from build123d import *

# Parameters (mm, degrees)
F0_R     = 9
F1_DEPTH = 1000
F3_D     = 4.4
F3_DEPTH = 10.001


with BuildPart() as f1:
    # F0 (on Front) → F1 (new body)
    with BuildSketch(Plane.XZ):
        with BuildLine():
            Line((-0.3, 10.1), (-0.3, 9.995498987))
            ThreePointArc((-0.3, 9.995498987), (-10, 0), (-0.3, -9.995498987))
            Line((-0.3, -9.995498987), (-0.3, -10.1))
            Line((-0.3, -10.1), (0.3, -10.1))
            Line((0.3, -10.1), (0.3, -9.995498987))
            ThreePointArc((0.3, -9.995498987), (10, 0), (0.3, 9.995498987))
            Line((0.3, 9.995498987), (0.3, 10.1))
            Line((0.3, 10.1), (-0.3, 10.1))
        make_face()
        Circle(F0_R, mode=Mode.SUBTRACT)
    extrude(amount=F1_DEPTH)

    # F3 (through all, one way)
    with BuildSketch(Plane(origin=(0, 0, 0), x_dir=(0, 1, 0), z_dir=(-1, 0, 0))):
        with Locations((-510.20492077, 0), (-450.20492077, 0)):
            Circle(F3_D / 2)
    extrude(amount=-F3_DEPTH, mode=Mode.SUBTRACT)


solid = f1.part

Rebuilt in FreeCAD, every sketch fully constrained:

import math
import FreeCAD as App
import Part
import Sketcher

V = App.Vector

doc = App.newDocument("Part")
body = doc.addObject("PartDesign::Body", "Body")

sketch1 = doc.addObject("Sketcher::SketchObject", "Sketch")
body.addObject(sketch1)
sketch1.AttachmentSupport = (doc.XZ_Plane, [""])
sketch1.MapMode = "FlatFace"
sketch1.addGeometry([
    Part.LineSegment(V(-0.3, 10.1, 0), V(-0.3, 9.995499, 0)),
    Part.ArcOfCircle(Part.Circle(V(0, 0, 0), V(0, 0, 1), 10), math.radians(91.719131), math.radians(268.280869)),
    Part.LineSegment(V(-0.3, -9.995499, 0), V(-0.3, -10.1, 0)),
    Part.LineSegment(V(-0.3, -10.1, 0), V(0.3, -10.1, 0)),
    Part.LineSegment(V(0.3, -10.1, 0), V(0.3, -9.995499, 0)),
    Part.ArcOfCircle(Part.Circle(V(0, 0, 0), V(0, 0, 1), 10), math.radians(-88.280869), math.radians(88.280869)),
    Part.LineSegment(V(0.3, 9.995499, 0), V(0.3, 10.1, 0)),
    Part.LineSegment(V(0.3, 10.1, 0), V(-0.3, 10.1, 0)),
    Part.Circle(V(0, 0, 0), V(0, 0, 1), 9),
], False)
sketch1.addConstraint([
    Sketcher.Constraint("Coincident", 0, 2, 1, 1),
    Sketcher.Constraint("Coincident", 1, 2, 2, 1),
    Sketcher.Constraint("Coincident", 2, 2, 3, 1),
    Sketcher.Constraint("Coincident", 3, 2, 4, 1),
    Sketcher.Constraint("Coincident", 4, 2, 5, 1),
    Sketcher.Constraint("Coincident", 5, 2, 6, 1),
    Sketcher.Constraint("Coincident", 6, 2, 7, 1),
    Sketcher.Constraint("Coincident", 7, 2, 0, 1),
    Sketcher.Constraint("Vertical", 0),
    Sketcher.Constraint("Vertical", 2),
    Sketcher.Constraint("Horizontal", 3),
    Sketcher.Constraint("Vertical", 4),
    Sketcher.Constraint("Vertical", 6),
    Sketcher.Constraint("Horizontal", 7),
    Sketcher.Constraint("Coincident", 1, 3, -1, 1),
    Sketcher.Constraint("Coincident", 5, 3, -1, 1),
    Sketcher.Constraint("Coincident", 8, 3, -1, 1),
    Sketcher.Constraint("Equal", 1, 5),
    Sketcher.Constraint("Symmetric", 2, 2, 6, 2, -1, 1),
    Sketcher.Constraint("Horizontal", 1, 2, 4, 2),
    Sketcher.Constraint("Horizontal", 0, 2, 5, 2),
    Sketcher.Constraint("Diameter", 8, 18.0),
    Sketcher.Constraint("Radius", 1, 10.0),
    Sketcher.Constraint("DistanceX", 3, 1, 3, 2, 0.6),
    Sketcher.Constraint("DistanceY", 2, 2, -1, 1, 10.1),
])
pad1 = doc.addObject("PartDesign::Pad", "Pad")
body.addObject(pad1)
pad1.Profile = sketch1
pad1.Length = 1000

sketch2 = doc.addObject("Sketcher::SketchObject", "Sketch001")
body.addObject(sketch2)
sketch2.AttachmentSupport = (doc.YZ_Plane, [""])
sketch2.MapMode = "FlatFace"
sketch2.addGeometry([
    Part.Circle(V(-450.204921, 0, 0), V(0, 0, 1), 2.2),
    Part.Circle(V(-510.204921, 0, 0), V(0, 0, 1), 2.2),
], False)
sketch2.addConstraint([
    Sketcher.Constraint("Equal", 0, 1),
    Sketcher.Constraint("PointOnObject", 0, 3, -1),
    Sketcher.Constraint("PointOnObject", 1, 3, -1),
    Sketcher.Constraint("Diameter", 0, 4.4),
    Sketcher.Constraint("DistanceX", 1, 3, 0, 3, 60.0),
    Sketcher.Constraint("DistanceX", 0, 3, -1, 1, 450.204921),
])
pocket1 = doc.addObject("PartDesign::Pocket", "Pocket")
body.addObject(pocket1)
pocket1.Profile = sketch2
pocket1.Type = "ThroughAll"
pocket1.Reversed = True

doc.recompute()
